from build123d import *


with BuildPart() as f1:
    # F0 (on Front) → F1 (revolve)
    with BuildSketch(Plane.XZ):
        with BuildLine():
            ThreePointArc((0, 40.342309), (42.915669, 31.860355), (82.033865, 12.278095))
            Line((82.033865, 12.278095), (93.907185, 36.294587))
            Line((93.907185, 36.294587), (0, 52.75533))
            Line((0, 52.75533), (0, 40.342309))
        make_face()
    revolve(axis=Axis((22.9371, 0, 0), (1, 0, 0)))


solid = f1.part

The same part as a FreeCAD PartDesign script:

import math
import FreeCAD as App
import Part
import Sketcher
from FreeCAD import Vector

doc = App.newDocument("Part")
body = doc.addObject("PartDesign::Body", "Body")

# Sketch on XZ plane
sketch1 = doc.addObject("Sketcher::SketchObject", "Sketch")
body.addObject(sketch1)
sketch1.AttachmentSupport = (doc.XZ_Plane, [""])
sketch1.MapMode = "FlatFace"
sketch1.addGeometry([
    Part.ArcOfCircle(Part.Circle(Vector(-10, -122, 0), Vector(0, 0, 1), 163), math.radians(56), math.radians(87)),
    Part.LineSegment(Vector(82, 12, 0), Vector(94, 36, 0)),
    Part.LineSegment(Vector(94, 36, 0), Vector(0, 53, 0)),
    Part.LineSegment(Vector(0, 53, 0), Vector(0, 40, 0)),
], False)
sketch1.addConstraint([
    Sketcher.Constraint("Coincident", 0, 1, 1, 1),
    Sketcher.Constraint("Coincident", 1, 2, 2, 1),
    Sketcher.Constraint("Coincident", 2, 2, 3, 1),
    Sketcher.Constraint("Coincident", 3, 2, 0, 2),
    Sketcher.Constraint("Vertical", 3),
    Sketcher.Constraint("PointOnObject", 2, 2, -2),
    Sketcher.Constraint("Radius", 0, 163.119134),
    Sketcher.Constraint("DistanceY", 3, 2, 3, 1, 12.413021),
    Sketcher.Constraint("Distance", 2, 95.33895),
    Sketcher.Constraint("DistanceX", 0, 3, -1, 1, 9.88398),
    Sketcher.Constraint("DistanceY", -1, 1, 2, 2, 52.75533),
    Sketcher.Constraint("DistanceY", 0, 3, 0, 1, 134.755191),
    Sketcher.Constraint("Distance", 1, 26.791185),
])
revolution = doc.addObject("PartDesign::Revolution", "Revolution")
body.addObject(revolution)
revolution.Profile = sketch1
revolution.ReferenceAxis = (sketch1, ["H_Axis"])
revolution.Angle = 360

doc.recompute()
